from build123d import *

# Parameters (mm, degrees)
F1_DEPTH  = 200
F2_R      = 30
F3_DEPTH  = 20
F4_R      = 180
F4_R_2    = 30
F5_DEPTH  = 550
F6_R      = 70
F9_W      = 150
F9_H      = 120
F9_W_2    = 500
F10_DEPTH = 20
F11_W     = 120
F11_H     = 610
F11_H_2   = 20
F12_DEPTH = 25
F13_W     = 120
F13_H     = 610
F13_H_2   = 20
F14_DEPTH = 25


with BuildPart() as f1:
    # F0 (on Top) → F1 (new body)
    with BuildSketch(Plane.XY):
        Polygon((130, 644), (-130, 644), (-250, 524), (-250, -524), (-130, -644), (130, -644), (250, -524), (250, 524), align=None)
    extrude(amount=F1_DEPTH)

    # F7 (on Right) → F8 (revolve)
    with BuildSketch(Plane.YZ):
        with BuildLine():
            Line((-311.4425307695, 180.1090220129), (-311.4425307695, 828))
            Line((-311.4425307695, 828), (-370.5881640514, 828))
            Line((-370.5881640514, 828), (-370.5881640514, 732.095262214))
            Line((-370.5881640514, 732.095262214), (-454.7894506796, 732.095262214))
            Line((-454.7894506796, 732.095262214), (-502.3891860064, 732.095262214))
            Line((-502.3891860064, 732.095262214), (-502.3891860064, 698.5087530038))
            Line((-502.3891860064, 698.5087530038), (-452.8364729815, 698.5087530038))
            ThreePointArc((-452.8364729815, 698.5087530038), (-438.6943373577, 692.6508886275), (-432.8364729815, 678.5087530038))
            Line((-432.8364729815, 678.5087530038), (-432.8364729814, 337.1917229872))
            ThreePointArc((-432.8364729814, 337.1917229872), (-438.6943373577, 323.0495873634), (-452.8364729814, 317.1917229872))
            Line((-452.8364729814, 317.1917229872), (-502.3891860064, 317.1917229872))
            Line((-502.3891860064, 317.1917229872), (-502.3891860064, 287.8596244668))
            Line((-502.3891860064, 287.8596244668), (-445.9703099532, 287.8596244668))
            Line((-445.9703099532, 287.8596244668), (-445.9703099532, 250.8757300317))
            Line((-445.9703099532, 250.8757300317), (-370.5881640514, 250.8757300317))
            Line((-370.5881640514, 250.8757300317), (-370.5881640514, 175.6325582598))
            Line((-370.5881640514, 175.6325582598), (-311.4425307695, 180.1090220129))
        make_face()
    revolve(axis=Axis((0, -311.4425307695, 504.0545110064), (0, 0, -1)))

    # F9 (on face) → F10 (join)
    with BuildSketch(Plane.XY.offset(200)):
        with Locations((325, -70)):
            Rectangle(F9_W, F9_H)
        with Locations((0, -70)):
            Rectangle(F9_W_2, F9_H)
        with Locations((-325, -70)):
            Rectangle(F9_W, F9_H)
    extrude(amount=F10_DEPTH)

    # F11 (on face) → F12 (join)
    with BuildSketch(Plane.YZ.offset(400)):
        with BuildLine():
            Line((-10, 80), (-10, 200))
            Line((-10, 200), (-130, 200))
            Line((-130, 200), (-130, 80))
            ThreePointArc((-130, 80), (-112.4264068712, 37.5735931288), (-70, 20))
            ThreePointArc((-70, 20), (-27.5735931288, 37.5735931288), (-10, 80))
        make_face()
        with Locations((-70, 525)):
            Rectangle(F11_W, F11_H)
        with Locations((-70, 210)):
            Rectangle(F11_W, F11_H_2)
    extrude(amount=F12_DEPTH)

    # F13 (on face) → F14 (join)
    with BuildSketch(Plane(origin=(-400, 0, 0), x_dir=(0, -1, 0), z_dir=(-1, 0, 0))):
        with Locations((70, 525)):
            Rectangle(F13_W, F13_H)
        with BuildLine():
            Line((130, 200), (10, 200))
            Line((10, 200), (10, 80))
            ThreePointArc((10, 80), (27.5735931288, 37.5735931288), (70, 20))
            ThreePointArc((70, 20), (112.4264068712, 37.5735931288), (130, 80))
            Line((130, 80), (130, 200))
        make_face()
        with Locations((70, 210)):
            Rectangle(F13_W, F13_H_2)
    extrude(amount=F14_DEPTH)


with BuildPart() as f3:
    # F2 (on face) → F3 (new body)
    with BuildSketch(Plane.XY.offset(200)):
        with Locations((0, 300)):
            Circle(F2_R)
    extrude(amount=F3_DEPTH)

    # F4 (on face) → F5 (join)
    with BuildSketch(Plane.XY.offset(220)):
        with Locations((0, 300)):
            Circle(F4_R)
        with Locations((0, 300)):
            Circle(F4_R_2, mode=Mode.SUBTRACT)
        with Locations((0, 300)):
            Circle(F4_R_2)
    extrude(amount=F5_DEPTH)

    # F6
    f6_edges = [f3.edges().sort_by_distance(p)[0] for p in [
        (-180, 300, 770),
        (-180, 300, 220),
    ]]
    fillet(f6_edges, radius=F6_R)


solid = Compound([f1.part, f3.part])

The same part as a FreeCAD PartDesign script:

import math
import FreeCAD as App
import Part
import Sketcher


def edges_at(feature, points):
    """Names of the edges that pass closest to the given points."""
    edges = feature.Shape.Edges
    near = lambda p: min(range(len(edges)), key=lambda i: edges[i].distToShape(Part.Vertex(*p))[0])
    return sorted({f"Edge{near(p) + 1}" for p in points})

doc = App.newDocument("Part")
body = doc.addObject("PartDesign::Body", "Body")

sketch1 = body.newObject("Sketcher::SketchObject", "Sketch")
sketch1.AttachmentSupport = (doc.getObject("XY_Plane"), [""])
sketch1.MapMode = "FlatFace"
sketch1.addGeometry([
    Part.LineSegment(App.Vector(130, 644, 0), App.Vector(-130, 644, 0)),
    Part.LineSegment(App.Vector(-130, 644, 0), App.Vector(-250, 524, 0)),
    Part.LineSegment(App.Vector(-250, 524, 0), App.Vector(-250, -524, 0)),
    Part.LineSegment(App.Vector(-250, -524, 0), App.Vector(-130, -644, 0)),
    Part.LineSegment(App.Vector(-130, -644, 0), App.Vector(130, -644, 0)),
    Part.LineSegment(App.Vector(130, -644, 0), App.Vector(250, -524, 0)),
    Part.LineSegment(App.Vector(250, -524, 0), App.Vector(250, 524, 0)),
    Part.LineSegment(App.Vector(250, 524, 0), App.Vector(130, 644, 0)),
], False)
sketch1.addConstraint([
    Sketcher.Constraint("Coincident", 0, 2, 1, 1),
    Sketcher.Constraint("Coincident", 1, 2, 2, 1),
    Sketcher.Constraint("Coincident", 2, 2, 3, 1),
    Sketcher.Constraint("Coincident", 3, 2, 4, 1),
    Sketcher.Constraint("Coincident", 4, 2, 5, 1),
    Sketcher.Constraint("Coincident", 5, 2, 6, 1),
    Sketcher.Constraint("Coincident", 6, 2, 7, 1),
    Sketcher.Constraint("Coincident", 7, 2, 0, 1),
    Sketcher.Constraint("Horizontal", 0),
    Sketcher.Constraint("Vertical", 2),
    Sketcher.Constraint("Horizontal", 4),
    Sketcher.Constraint("Vertical", 6),
    Sketcher.Constraint("Symmetric", 0, 2, 4, 2, -1, 1),
    Sketcher.Constraint("Symmetric", 1, 2, 5, 2, -1, 1),
    Sketcher.Constraint("Perpendicular", 1, 3),
    Sketcher.Constraint("Perpendicular", 5, 7),
    Sketcher.Constraint("Horizontal", 2, 2, 5, 2),
    Sketcher.Constraint("Horizontal", 1, 2, 6, 2),
    Sketcher.Constraint("Vertical", 0, 2, 3, 2),
    Sketcher.Constraint("DistanceX", 0, 2, 0, 1, 260.0),
    Sketcher.Constraint("DistanceY", 2, 2, 2, 1, 1048.0),
    Sketcher.Constraint("DistanceY", -1, 1, 0, 2, 644.0),
])
pad1 = body.newObject("PartDesign::Pad", "Pad")
pad1.Profile = sketch1
pad1.Length = 200

sketch2 = body.newObject("Sketcher::SketchObject", "Sketch001")
sketch2.AttachmentSupport = (doc.getObject("YZ_Plane"), [""])
sketch2.MapMode = "FlatFace"
sketch2.addGeometry([
    Part.LineSegment(App.Vector(-311.442531, 180.109022, 0), App.Vector(-311.442531, 828, 0)),
    Part.LineSegment(App.Vector(-311.442531, 828, 0), App.Vector(-370.588164, 828, 0)),
    Part.LineSegment(App.Vector(-370.588164, 828, 0), App.Vector(-370.588164, 732.095262, 0)),
    Part.LineSegment(App.Vector(-370.588164, 732.095262, 0), App.Vector(-502.389186, 732.095262, 0)),
    Part.LineSegment(App.Vector(-502.389186, 732.095262, 0), App.Vector(-502.389186, 698.508753, 0)),
    Part.LineSegment(App.Vector(-502.389186, 698.508753, 0), App.Vector(-452.836473, 698.508753, 0)),
    Part.ArcOfCircle(Part.Circle(App.Vector(-452.836473, 678.508753, 0), App.Vector(0, 0, 1), 20), math.radians(0), math.radians(90)),
    Part.LineSegment(App.Vector(-432.836473, 678.508753, 0), App.Vector(-432.836473, 337.191723, 0)),
    Part.ArcOfCircle(Part.Circle(App.Vector(-452.836473, 337.191723, 0), App.Vector(0, 0, 1), 20), math.radians(-90), math.radians(0)),
    Part.LineSegment(App.Vector(-452.836473, 317.191723, 0), App.Vector(-502.389186, 317.191723, 0)),
    Part.LineSegment(App.Vector(-502.389186, 317.191723, 0), App.Vector(-502.389186, 287.859624, 0)),
    Part.LineSegment(App.Vector(-502.389186, 287.859624, 0), App.Vector(-445.97031, 287.859624, 0)),
    Part.LineSegment(App.Vector(-445.97031, 287.859624, 0), App.Vector(-445.97031, 250.87573, 0)),
    Part.LineSegment(App.Vector(-445.97031, 250.87573, 0), App.Vector(-370.588164, 250.87573, 0)),
    Part.LineSegment(App.Vector(-370.588164, 250.87573, 0), App.Vector(-370.588164, 175.632558, 0)),
    Part.LineSegment(App.Vector(-370.588164, 175.632558, 0), App.Vector(-311.442531, 180.109022, 0)),
], False)
sketch2.addGeometry(Part.LineSegment(App.Vector(-311.442531, 828, 0), App.Vector(-311.442531, 175.632558, 0)), True)
sketch2.addConstraint([
    Sketcher.Constraint("Coincident", 0, 2, 1, 1),
    Sketcher.Constraint("Coincident", 1, 2, 2, 1),
    Sketcher.Constraint("Coincident", 2, 2, 3, 1),
    Sketcher.Constraint("Coincident", 3, 2, 4, 1),
    Sketcher.Constraint("Coincident", 4, 2, 5, 1),
    Sketcher.Constraint("Tangent", 5, 2, 6, 2),
    Sketcher.Constraint("Tangent", 6, 1, 7, 1),
    Sketcher.Constraint("Tangent", 7, 2, 8, 2),
    Sketcher.Constraint("Tangent", 8, 1, 9, 1),
    Sketcher.Constraint("Coincident", 9, 2, 10, 1),
    Sketcher.Constraint("Coincident", 10, 2, 11, 1),
    Sketcher.Constraint("Coincident", 11, 2, 12, 1),
    Sketcher.Constraint("Coincident", 12, 2, 13, 1),
    Sketcher.Constraint("Coincident", 13, 2, 14, 1),
    Sketcher.Constraint("Coincident", 14, 2, 15, 1),
    Sketcher.Constraint("Coincident", 15, 2, 0, 1),
    Sketcher.Constraint("Vertical", 0),
    Sketcher.Constraint("Horizontal", 1),
    Sketcher.Constraint("Vertical", 2),
    Sketcher.Constraint("Horizontal", 3),
    Sketcher.Constraint("Vertical", 4),
    Sketcher.Constraint("Horizontal", 5),
    Sketcher.Constraint("Vertical", 7),
    Sketcher.Constraint("Horizontal", 9),
    Sketcher.Constraint("Vertical", 10),
    Sketcher.Constraint("Horizontal", 11),
    Sketcher.Constraint("Vertical", 12),
    Sketcher.Constraint("Horizontal", 13),
    Sketcher.Constraint("Vertical", 14),
    Sketcher.Constraint("Vertical", 16),
    Sketcher.Constraint("Coincident", 16, 1, 0, 2),
    Sketcher.Constraint("Equal", 6, 8),
    Sketcher.Constraint("Horizontal", 14, 2, 16, 2),
    Sketcher.Constraint("Vertical", 4, 2, 9, 2),
    Sketcher.Constraint("Vertical", 2, 2, 13, 2),
    Sketcher.Constraint("Radius", 6, 20.0),
    Sketcher.Constraint("DistanceY", -1, 1, 0, 2, 828.0),
    Sketcher.Constraint("DistanceY", 10, 2, 10, 1, 29.332099),
    Sketcher.Constraint("DistanceX", 3, 2, 3, 1, 131.801022),
    Sketcher.Constraint("DistanceY", 4, 2, 4, 1, 33.586509),
    Sketcher.Constraint("DistanceY", 7, 2, 7, 1, 341.31703),
    Sketcher.Constraint("DistanceY", 14, 2, 14, 1, 75.243172),
    Sketcher.Constraint("DistanceY", 16, 2, 16, 1, 652.367442),
    Sketcher.Constraint("DistanceY", 15, 2, 8, 1, 137.082701),
    Sketcher.Constraint("DistanceX", 1, 2, 1, 1, 59.145633),
    Sketcher.Constraint("DistanceX", 5, 1, 5, 2, 49.552713),
    Sketcher.Constraint("DistanceX", 11, 1, 11, 2, 56.418876),
    Sketcher.Constraint("DistanceY", 0, 1, 0, 2, 647.890978),
    Sketcher.Constraint("DistanceX", 0, 2, -1, 1, 311.442531),
])
revolution = body.newObject("PartDesign::Revolution", "Revolution")
revolution.Profile = sketch2
revolution.ReferenceAxis = (sketch2, ["Axis0"])
revolution.Angle = 360

sketch3 = body.newObject("Sketcher::SketchObject", "Sketch002")
sketch3.AttachmentSupport = (doc.getObject("XY_Plane"), [""])
sketch3.MapMode = "FlatFace"
sketch3.AttachmentOffset = App.Placement(App.Vector(0, 0, 200), App.Rotation())
sketch3.addGeometry([
    Part.LineSegment(App.Vector(400, -130, 0), App.Vector(400, -10, 0)),
    Part.LineSegment(App.Vector(400, -10, 0), App.Vector(-400, -10, 0)),
    Part.LineSegment(App.Vector(-400, -10, 0), App.Vector(-400, -130, 0)),
    Part.LineSegment(App.Vector(-400, -130, 0), App.Vector(400, -130, 0)),
], False)
sketch3.addConstraint([
    Sketcher.Constraint("Coincident", 0, 2, 1, 1),
    Sketcher.Constraint("Coincident", 1, 2, 2, 1),
    Sketcher.Constraint("Coincident", 2, 2, 3, 1),
    Sketcher.Constraint("Coincident", 3, 2, 0, 1),
    Sketcher.Constraint("Vertical", 0),
    Sketcher.Constraint("Horizontal", 1),
    Sketcher.Constraint("Vertical", 2),
    Sketcher.Constraint("Horizontal", 3),
    Sketcher.Constraint("DistanceX", 1, 2, 1, 1, 800.0),
    Sketcher.Constraint("DistanceY", 0, 1, 0, 2, 120.0),
    Sketcher.Constraint("DistanceX", -1, 1, 0, 2, 400.0),
    Sketcher.Constraint("DistanceY", 0, 2, -1, 1, 10.0),
])
pad2 = body.newObject("PartDesign::Pad", "Pad001")
pad2.Profile = sketch3
pad2.Length = 20

sketch4 = body.newObject("Sketcher::SketchObject", "Sketch003")
sketch4.AttachmentSupport = (doc.getObject("YZ_Plane"), [""])
sketch4.MapMode = "FlatFace"
sketch4.AttachmentOffset = App.Placement(App.Vector(0, 0, 400), App.Rotation())
sketch4.addGeometry([
    Part.LineSegment(App.Vector(-10, 80, 0), App.Vector(-10, 830, 0)),
    Part.LineSegment(App.Vector(-10, 830, 0), App.Vector(-130, 830, 0)),
    Part.LineSegment(App.Vector(-130, 830, 0), App.Vector(-130, 80, 0)),
    Part.ArcOfCircle(Part.Circle(App.Vector(-70, 80, 0), App.Vector(0, 0, 1), 60), math.radians(180), math.radians(360)),
], False)
sketch4.addConstraint([
    Sketcher.Constraint("Coincident", 0, 2, 1, 1),
    Sketcher.Constraint("Coincident", 1, 2, 2, 1),
    Sketcher.Constraint("Tangent", 2, 2, 3, 1),
    Sketcher.Constraint("Tangent", 3, 2, 0, 1),
    Sketcher.Constraint("Vertical", 0),
    Sketcher.Constraint("Horizontal", 1),
    Sketcher.Constraint("Vertical", 2),
    Sketcher.Constraint("Radius", 3, 60.0),
    Sketcher.Constraint("DistanceY", 0, 1, 0, 2, 750.0),
    Sketcher.Constraint("DistanceX", 3, 3, -1, 1, 70.0),
    Sketcher.Constraint("DistanceY", -1, 1, 3, 3, 80.0),
])
pad3 = body.newObject("PartDesign::Pad", "Pad002")
pad3.Profile = sketch4
pad3.Length = 25

sketch5 = body.newObject("Sketcher::SketchObject", "Sketch004")
sketch5.AttachmentSupport = (doc.getObject("YZ_Plane"), [""])
sketch5.MapMode = "FlatFace"
sketch5.AttachmentOffset = App.Placement(App.Vector(0, 0, -400), App.Rotation())
sketch5.addGeometry([
    Part.LineSegment(App.Vector(-10, 830, 0), App.Vector(-10, 80, 0)),
    Part.ArcOfCircle(Part.Circle(App.Vector(-70, 80, 0), App.Vector(0, 0, 1), 60), math.radians(180), math.radians(360)),
    Part.LineSegment(App.Vector(-130, 80, 0), App.Vector(-130, 830, 0)),
    Part.LineSegment(App.Vector(-130, 830, 0), App.Vector(-10, 830, 0)),
], False)
sketch5.addConstraint([
    Sketcher.Constraint("Tangent", 0, 2, 1, 2),
    Sketcher.Constraint("Tangent", 1, 1, 2, 1),
    Sketcher.Constraint("Coincident", 2, 2, 3, 1),
    Sketcher.Constraint("Coincident", 3, 2, 0, 1),
    Sketcher.Constraint("Vertical", 0),
    Sketcher.Constraint("Vertical", 2),
    Sketcher.Constraint("Horizontal", 3),
    Sketcher.Constraint("Radius", 1, 60.0),
    Sketcher.Constraint("DistanceY", 0, 2, 0, 1, 750.0),
    Sketcher.Constraint("DistanceX", 1, 3, -1, 1, 70.0),
    Sketcher.Constraint("DistanceY", -1, 1, 1, 3, 80.0),
])
pad4 = body.newObject("PartDesign::Pad", "Pad003")
pad4.Profile = sketch5
pad4.Length = 25
pad4.Reversed = True
body2 = doc.addObject("PartDesign::Body", "Body001")

sketch6 = body2.newObject("Sketcher::SketchObject", "Sketch005")
sketch6.AttachmentSupport = (doc.getObject("XY_Plane001"), [""])
sketch6.MapMode = "FlatFace"
sketch6.AttachmentOffset = App.Placement(App.Vector(0, 0, 200), App.Rotation())
sketch6.addGeometry(Part.Circle(App.Vector(0, 300, 0), App.Vector(0, 0, 1), 30), False)
sketch6.addConstraint([
    Sketcher.Constraint("PointOnObject", 0, 3, -2),
    Sketcher.Constraint("Diameter", 0, 60.0),
    Sketcher.Constraint("DistanceY", -1, 1, 0, 3, 300.0),
])
pad5 = body2.newObject("PartDesign::Pad", "Pad004")
pad5.Profile = sketch6
pad5.Length = 20

sketch7 = body2.newObject("Sketcher::SketchObject", "Sketch006")
sketch7.AttachmentSupport = (doc.getObject("XY_Plane001"), [""])
sketch7.MapMode = "FlatFace"
sketch7.AttachmentOffset = App.Placement(App.Vector(0, 0, 220), App.Rotation())
sketch7.addGeometry(Part.Circle(App.Vector(0, 300, 0), App.Vector(0, 0, 1), 180), False)
sketch7.addConstraint([
    Sketcher.Constraint("PointOnObject", 0, 3, -2),
    Sketcher.Constraint("Diameter", 0, 360.0),
    Sketcher.Constraint("DistanceY", -1, 1, 0, 3, 300.0),
])
pad6 = body2.newObject("PartDesign::Pad", "Pad005")
pad6.Profile = sketch7
pad6.Length = 550
doc.recompute()

fillet = body2.newObject("PartDesign::Fillet", "Fillet")
fillet.Base = (pad6, edges_at(pad6, [(-180, 300, 770), (-180, 300, 220)]))
fillet.Radius = 70

doc.recompute()
